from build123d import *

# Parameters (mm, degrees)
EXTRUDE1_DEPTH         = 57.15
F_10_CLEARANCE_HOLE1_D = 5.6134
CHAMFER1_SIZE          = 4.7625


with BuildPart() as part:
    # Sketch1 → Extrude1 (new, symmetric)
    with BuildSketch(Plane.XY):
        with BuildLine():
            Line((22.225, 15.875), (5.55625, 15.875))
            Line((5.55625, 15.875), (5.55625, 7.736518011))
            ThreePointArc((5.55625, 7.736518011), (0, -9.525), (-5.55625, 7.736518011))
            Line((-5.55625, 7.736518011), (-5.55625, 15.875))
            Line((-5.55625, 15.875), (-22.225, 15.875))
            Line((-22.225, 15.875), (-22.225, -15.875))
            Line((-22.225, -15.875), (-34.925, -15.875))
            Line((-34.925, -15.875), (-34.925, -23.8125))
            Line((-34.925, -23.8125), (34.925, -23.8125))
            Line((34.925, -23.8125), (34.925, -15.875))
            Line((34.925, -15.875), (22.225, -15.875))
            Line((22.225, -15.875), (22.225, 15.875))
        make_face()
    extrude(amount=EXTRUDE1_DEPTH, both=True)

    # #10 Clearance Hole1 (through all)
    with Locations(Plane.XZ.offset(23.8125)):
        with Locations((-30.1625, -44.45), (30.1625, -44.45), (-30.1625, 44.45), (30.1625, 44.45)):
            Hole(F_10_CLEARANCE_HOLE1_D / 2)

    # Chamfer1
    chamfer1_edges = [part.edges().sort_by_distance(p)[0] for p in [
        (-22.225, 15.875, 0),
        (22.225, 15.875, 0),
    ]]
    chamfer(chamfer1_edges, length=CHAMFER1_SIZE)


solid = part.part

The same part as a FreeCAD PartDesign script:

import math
import FreeCAD as App
import Part
import Sketcher
from FreeCAD import Vector
Q = App.Units.Quantity


def edges_at(feature, points):
    """Names of the edges that pass closest to the given points."""
    edges = feature.Shape.Edges
    near = lambda p: min(range(len(edges)), key=lambda i: edges[i].distToShape(Part.Vertex(*p))[0])
    return sorted({f"Edge{near(p) + 1}" for p in points})

doc = App.newDocument("Part")
body = doc.addObject("PartDesign::Body", "Body")

sketch1 = doc.addObject("Sketcher::SketchObject", "Sketch")
body.addObject(sketch1)
sketch1.AttachmentSupport = (doc.XY_Plane, [""])
sketch1.MapMode = "FlatFace"
sketch1.addGeometry([
    Part.LineSegment(Vector(22, 16, 0), Vector(6, 16, 0)),
    Part.LineSegment(Vector(6, 16, 0), Vector(6, 8, 0)),
    Part.ArcOfCircle(Part.Circle(Vector(0, 0, 0), Vector(0, 0, 1), 10), math.radians(126), math.radians(414)),
    Part.LineSegment(Vector(-6, 8, 0), Vector(-6, 16, 0)),
    Part.LineSegment(Vector(-6, 16, 0), Vector(-22, 16, 0)),
    Part.LineSegment(Vector(-22, 16, 0), Vector(-22, -16, 0)),
    Part.LineSegment(Vector(-22, -16, 0), Vector(-35, -16, 0)),
    Part.LineSegment(Vector(-35, -16, 0), Vector(-35, -24, 0)),
    Part.LineSegment(Vector(-35, -24, 0), Vector(35, -24, 0)),
    Part.LineSegment(Vector(35, -24, 0), Vector(35, -16, 0)),
    Part.LineSegment(Vector(35, -16, 0), Vector(22, -16, 0)),
    Part.LineSegment(Vector(22, -16, 0), Vector(22, 16, 0)),
], False)
sketch1.addConstraint([
    Sketcher.Constraint("Coincident", 0, 2, 1, 1),
    Sketcher.Constraint("Coincident", 1, 2, 2, 2),
    Sketcher.Constraint("Coincident", 2, 1, 3, 1),
    Sketcher.Constraint("Coincident", 3, 2, 4, 1),
    Sketcher.Constraint("Coincident", 4, 2, 5, 1),
    Sketcher.Constraint("Coincident", 5, 2, 6, 1),
    Sketcher.Constraint("Coincident", 6, 2, 7, 1),
    Sketcher.Constraint("Coincident", 7, 2, 8, 1),
    Sketcher.Constraint("Coincident", 8, 2, 9, 1),
    Sketcher.Constraint("Coincident", 9, 2, 10, 1),
    Sketcher.Constraint("Coincident", 10, 2, 11, 1),
    Sketcher.Constraint("Coincident", 11, 2, 0, 1),
    Sketcher.Constraint("Horizontal", 0),
    Sketcher.Constraint("Vertical", 1),
    Sketcher.Constraint("Vertical", 3),
    Sketcher.Constraint("Horizontal", 4),
    Sketcher.Constraint("Vertical", 5),
    Sketcher.Constraint("Horizontal", 6),
    Sketcher.Constraint("Vertical", 7),
    Sketcher.Constraint("Horizontal", 8),
    Sketcher.Constraint("Vertical", 9),
    Sketcher.Constraint("Horizontal", 10),
    Sketcher.Constraint("Vertical", 11),
    Sketcher.Constraint("Coincident", 2, 3, -1, 1),
    Sketcher.Constraint("Symmetric", 4, 2, 10, 2, -1, 1),
    Sketcher.Constraint("Symmetric", 0, 2, 3, 2, -2),
    Sketcher.Constraint("Symmetric", 6, 2, 9, 2, -2),
    Sketcher.Constraint("DistanceX", 6, 2, 6, 1, Q("0.5 in")),
    Sketcher.Constraint("Radius", 2, Q("0.375 in")),
    Sketcher.Constraint("DistanceX", 8, 1, 8, 2, Q("2.75 in")),
    Sketcher.Constraint("DistanceY", 5, 2, 5, 1, Q("1.25 in")),
    Sketcher.Constraint("DistanceX", 0, 2, 0, 1, Q("0.65625 in")),
    Sketcher.Constraint("DistanceY", 7, 2, 7, 1, Q("0.3125 in")),
])
pad1 = doc.addObject("PartDesign::Pad", "Pad")
body.addObject(pad1)
pad1.Profile = sketch1
pad1.Length = Q("4.5 in")
pad1.Midplane = True

sketch2 = doc.addObject("Sketcher::SketchObject", "Sketch001")
body.addObject(sketch2)
sketch2.AttachmentSupport = (doc.XZ_Plane, [""])
sketch2.MapMode = "FlatFace"
sketch2.AttachmentOffset = App.Placement(Vector(0, 0, 0.9375 * 25.4), App.Rotation())
sketch2.addGeometry([
    Part.Circle(Vector(-30.2, -44.5, 0), Vector(0, 0, 1), 2.8),
    Part.Circle(Vector(30.2, -44.5, 0), Vector(0, 0, 1), 2.8),
    Part.Circle(Vector(-30.2, 44.5, 0), Vector(0, 0, 1), 2.8),
    Part.Circle(Vector(30.2, 44.5, 0), Vector(0, 0, 1), 2.8),
], False)
sketch2.addConstraint([
    Sketcher.Constraint("Equal", 0, 1),
    Sketcher.Constraint("Equal", 1, 2),
    Sketcher.Constraint("Equal", 2, 3),
    Sketcher.Constraint("Symmetric", 1, 3, 2, 3, -1, 1),
    Sketcher.Constraint("Symmetric", 0, 3, 3, 3, -1, 1),
    Sketcher.Constraint("Symmetric", 0, 3, 1, 3, -2),
    Sketcher.Constraint("Diameter", 0, Q("0.221 in")),
    Sketcher.Constraint("DistanceY", 0, 3, 2, 3, Q("3.5 in")),
    Sketcher.Constraint("DistanceX", 0, 3, -1, 1, Q("1.1875 in")),
])
doc.recompute()
hole = doc.addObject("PartDesign::Hole", "Hole")
body.addObject(hole)
hole.Profile = sketch2
hole.ThreadType = "None"
hole.Diameter = Q("0.221 in")
hole.DepthType = "ThroughAll"
doc.recompute()

chamfer = doc.addObject("PartDesign::Chamfer", "Chamfer")
body.addObject(chamfer)
chamfer.Base = (hole, edges_at(hole, [(-22.225, 15.875, 0), (22.225, 15.875, 0)]))
chamfer.Size = Q("0.1875 in")

doc.recompute()
